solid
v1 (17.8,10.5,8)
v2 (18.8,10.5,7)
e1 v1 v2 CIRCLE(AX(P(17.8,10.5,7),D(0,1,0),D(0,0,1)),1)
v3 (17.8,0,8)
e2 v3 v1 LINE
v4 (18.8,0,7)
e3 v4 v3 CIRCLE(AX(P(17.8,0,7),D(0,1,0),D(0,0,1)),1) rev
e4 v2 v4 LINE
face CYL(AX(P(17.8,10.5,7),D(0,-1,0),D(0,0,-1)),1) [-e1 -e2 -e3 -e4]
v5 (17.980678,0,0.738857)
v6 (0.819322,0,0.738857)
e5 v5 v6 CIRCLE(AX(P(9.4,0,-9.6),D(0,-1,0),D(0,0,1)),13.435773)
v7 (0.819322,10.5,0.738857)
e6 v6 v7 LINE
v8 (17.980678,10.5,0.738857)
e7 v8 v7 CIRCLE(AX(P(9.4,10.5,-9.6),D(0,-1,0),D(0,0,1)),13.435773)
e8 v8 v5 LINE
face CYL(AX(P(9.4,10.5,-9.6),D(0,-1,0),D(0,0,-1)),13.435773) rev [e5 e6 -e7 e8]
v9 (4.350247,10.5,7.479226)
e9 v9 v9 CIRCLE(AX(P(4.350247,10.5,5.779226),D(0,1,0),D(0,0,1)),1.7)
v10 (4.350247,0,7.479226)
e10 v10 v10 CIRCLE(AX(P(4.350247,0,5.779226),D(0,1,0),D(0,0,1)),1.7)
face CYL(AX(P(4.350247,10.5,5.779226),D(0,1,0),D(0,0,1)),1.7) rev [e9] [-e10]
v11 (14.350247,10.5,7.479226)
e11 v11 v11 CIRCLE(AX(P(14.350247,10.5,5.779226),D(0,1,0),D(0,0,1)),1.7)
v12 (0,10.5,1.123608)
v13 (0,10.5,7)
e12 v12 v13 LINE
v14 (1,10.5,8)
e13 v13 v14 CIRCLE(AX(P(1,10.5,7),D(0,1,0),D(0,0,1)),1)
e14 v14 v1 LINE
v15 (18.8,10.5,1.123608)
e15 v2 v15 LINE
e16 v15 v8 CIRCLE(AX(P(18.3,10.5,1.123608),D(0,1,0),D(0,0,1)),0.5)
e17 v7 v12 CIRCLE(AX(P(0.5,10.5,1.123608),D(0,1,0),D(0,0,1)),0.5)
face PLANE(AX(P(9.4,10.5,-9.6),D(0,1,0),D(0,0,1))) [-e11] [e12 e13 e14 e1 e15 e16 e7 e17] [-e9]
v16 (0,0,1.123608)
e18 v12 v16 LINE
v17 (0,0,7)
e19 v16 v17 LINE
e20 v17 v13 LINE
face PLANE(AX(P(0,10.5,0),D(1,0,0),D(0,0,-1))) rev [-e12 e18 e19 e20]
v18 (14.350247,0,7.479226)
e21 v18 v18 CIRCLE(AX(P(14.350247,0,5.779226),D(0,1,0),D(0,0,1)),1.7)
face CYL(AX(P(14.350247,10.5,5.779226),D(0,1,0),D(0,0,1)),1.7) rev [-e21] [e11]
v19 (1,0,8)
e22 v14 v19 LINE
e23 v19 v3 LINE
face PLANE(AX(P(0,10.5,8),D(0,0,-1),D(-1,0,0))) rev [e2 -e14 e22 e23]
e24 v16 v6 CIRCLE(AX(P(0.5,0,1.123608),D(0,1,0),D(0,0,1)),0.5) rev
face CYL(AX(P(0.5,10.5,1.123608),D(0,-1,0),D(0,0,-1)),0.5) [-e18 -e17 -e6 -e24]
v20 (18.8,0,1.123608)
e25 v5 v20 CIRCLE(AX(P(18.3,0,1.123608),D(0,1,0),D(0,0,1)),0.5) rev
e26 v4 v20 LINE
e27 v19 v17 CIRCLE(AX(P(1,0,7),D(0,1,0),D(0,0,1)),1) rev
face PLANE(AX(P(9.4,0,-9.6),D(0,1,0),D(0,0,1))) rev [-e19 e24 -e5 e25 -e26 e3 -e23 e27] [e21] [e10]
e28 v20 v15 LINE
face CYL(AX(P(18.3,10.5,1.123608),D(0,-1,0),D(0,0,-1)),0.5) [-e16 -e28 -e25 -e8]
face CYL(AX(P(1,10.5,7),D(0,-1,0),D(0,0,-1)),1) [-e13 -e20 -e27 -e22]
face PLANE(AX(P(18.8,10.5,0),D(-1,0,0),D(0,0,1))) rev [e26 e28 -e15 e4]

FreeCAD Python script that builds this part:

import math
import FreeCAD as App
import Part
import Sketcher


def edges_at(feature, points):
    """Names of the edges that pass closest to the given points."""
    edges = feature.Shape.Edges
    near = lambda p: min(range(len(edges)), key=lambda i: edges[i].distToShape(Part.Vertex(*p))[0])
    return sorted({f"Edge{near(p) + 1}" for p in points})

doc = App.newDocument("Part")
body = doc.addObject("PartDesign::Body", "Body")

# Sketch on XZ plane
sketch1 = body.newObject("Sketcher::SketchObject", "Sketch")
sketch1.AttachmentSupport = (doc.getObject("XZ_Plane"), [""])
sketch1.MapMode = "FlatFace"
sketch1.addGeometry([
    Part.LineSegment(App.Vector(0, 0, 0), App.Vector(0, 8, 0)),
    Part.LineSegment(App.Vector(0, 8, 0), App.Vector(19, 8, 0)),
    Part.LineSegment(App.Vector(19, 8, 0), App.Vector(19, 0, 0)),
    Part.ArcOfCircle(Part.Circle(App.Vector(9, -10, 0), App.Vector(0, 0, 1), 13), math.radians(46), math.radians(134)),
], False)
sketch1.addConstraint([
    Sketcher.Constraint("Coincident", 0, 2, 1, 1),
    Sketcher.Constraint("Coincident", 1, 2, 2, 1),
    Sketcher.Constraint("Coincident", 2, 2, 3, 1),
    Sketcher.Constraint("Coincident", 3, 2, 0, 1),
    Sketcher.Constraint("Vertical", 0),
    Sketcher.Constraint("Horizontal", 1),
    Sketcher.Constraint("Vertical", 2),
    Sketcher.Constraint("Coincident", 3, 2, -1, 1),
    Sketcher.Constraint("PointOnObject", 2, 2, -1),
    Sketcher.Constraint("DistanceY", 0, 1, 0, 2, 8.0),
    Sketcher.Constraint("DistanceX", 1, 1, 1, 2, 18.8),
    Sketcher.Constraint("DistanceY", 3, 3, -1, 1, 9.6),
])
pad1 = body.newObject("PartDesign::Pad", "Pad")
pad1.Profile = sketch1
pad1.Length = 10.5
pad1.Reversed = True
doc.recompute()

fillet = body.newObject("PartDesign::Fillet", "Fillet")
fillet.Base = (pad1, edges_at(pad1, [(18.8, 5.25, 8), (0, 5.25, 8)]))
fillet.Radius = 1

# Sketch on XZ plane
sketch2 = body.newObject("Sketcher::SketchObject", "Sketch001")
sketch2.AttachmentSupport = (doc.getObject("XZ_Plane"), [""])
sketch2.MapMode = "FlatFace"
sketch2.AttachmentOffset = App.Placement(App.Vector(0, 0, -10.5), App.Rotation())
sketch2.addGeometry([
    Part.Circle(App.Vector(4.4, 5.8, 0), App.Vector(0, 0, 1), 1.7),
    Part.Circle(App.Vector(14.4, 5.8, 0), App.Vector(0, 0, 1), 1.7),
], False)
sketch2.addConstraint([
    Sketcher.Constraint("Equal", 0, 1),
    Sketcher.Constraint("Horizontal", 0, 3, 1, 3),
    Sketcher.Constraint("Diameter", 0, 3.4),
    Sketcher.Constraint("DistanceX", 0, 3, 1, 3, 10.0),
    Sketcher.Constraint("DistanceX", -1, 1, 0, 3, 4.350247),
    Sketcher.Constraint("DistanceY", -1, 1, 0, 3, 5.779226),
])
doc.recompute()
hole = body.newObject("PartDesign::Hole", "Hole")
hole.Profile = sketch2
hole.ThreadType = "None"
hole.Diameter = 3.4
hole.DepthType = "ThroughAll"
hole.Reversed = True
doc.recompute()

fillet2 = body.newObject("PartDesign::Fillet", "Fillet001")
fillet2.Base = (hole, edges_at(hole, [(18.8, 5.25, 0), (0, 5.25, 0)]))
fillet2.Radius = 0.5

doc.recompute()
